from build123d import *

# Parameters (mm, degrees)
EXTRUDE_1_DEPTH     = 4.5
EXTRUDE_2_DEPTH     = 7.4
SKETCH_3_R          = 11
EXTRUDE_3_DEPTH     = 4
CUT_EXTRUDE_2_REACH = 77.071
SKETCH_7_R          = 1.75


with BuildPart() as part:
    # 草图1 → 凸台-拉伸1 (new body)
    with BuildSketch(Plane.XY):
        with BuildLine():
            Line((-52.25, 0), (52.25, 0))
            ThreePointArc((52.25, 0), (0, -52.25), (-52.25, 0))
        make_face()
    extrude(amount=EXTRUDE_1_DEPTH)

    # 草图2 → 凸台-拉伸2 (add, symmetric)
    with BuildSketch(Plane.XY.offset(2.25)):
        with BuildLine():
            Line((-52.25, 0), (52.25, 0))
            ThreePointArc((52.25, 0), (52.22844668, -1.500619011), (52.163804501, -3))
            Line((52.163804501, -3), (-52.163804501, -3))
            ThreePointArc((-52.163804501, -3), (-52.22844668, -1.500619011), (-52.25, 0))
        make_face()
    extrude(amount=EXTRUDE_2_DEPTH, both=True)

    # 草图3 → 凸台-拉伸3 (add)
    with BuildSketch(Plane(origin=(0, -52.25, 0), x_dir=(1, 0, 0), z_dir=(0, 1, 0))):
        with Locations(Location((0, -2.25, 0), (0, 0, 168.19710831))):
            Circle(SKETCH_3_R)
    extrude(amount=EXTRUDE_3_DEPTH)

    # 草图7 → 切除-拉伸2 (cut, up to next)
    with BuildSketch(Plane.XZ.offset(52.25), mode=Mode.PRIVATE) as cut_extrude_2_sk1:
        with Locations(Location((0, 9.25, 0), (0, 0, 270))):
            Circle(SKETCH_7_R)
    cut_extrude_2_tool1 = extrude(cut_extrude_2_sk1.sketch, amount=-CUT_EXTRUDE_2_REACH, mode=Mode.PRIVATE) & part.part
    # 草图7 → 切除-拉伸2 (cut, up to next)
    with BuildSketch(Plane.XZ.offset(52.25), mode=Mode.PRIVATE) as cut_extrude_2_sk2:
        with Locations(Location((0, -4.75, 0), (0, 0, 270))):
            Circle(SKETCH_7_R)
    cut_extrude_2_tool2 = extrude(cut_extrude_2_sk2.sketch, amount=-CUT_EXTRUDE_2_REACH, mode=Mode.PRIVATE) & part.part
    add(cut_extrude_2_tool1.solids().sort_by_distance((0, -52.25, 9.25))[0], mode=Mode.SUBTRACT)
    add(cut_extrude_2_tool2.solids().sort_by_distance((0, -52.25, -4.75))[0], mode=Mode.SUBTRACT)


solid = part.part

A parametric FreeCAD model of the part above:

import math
import FreeCAD as App
import Part
import Sketcher
Q = App.Units.Quantity

doc = App.newDocument("Part")
params = doc.addObject("Spreadsheet::Sheet", "Params")
for row, (alias, value) in enumerate([
    ("sketch1_radius", "52.25 mm"),
    ("pad1_length", "4.5 mm"),
    ("sketch2_radius", "52.25 mm"),
    ("pad2_length", "14.8 mm"),
    ("sketch3_diameter", "22 mm"),
    ("pad3_length", "4 mm"),
    ("sketch4_diameter", "3.5 mm"),
    ("sketch5_diameter", "3.5 mm"),
], start=1):
    params.set(f"A{row}", alias)
    params.set(f"B{row}", "=" + value)
    params.setAlias(f"B{row}", alias)

body = doc.addObject("PartDesign::Body", "Body")

sketch1 = doc.addObject("Sketcher::SketchObject", "Sketch")
body.addObject(sketch1)
sketch1.AttachmentSupport = (doc.XY_Plane, [""])
sketch1.MapMode = "FlatFace"
sketch1.addGeometry([
    Part.LineSegment(App.Vector(52.25, 0, 0), App.Vector(-52.25, 0, 0)),
    Part.ArcOfCircle(Part.Circle(App.Vector(0, 0, 0), App.Vector(0, 0, 1), 52.25), math.radians(180), math.radians(360)),
], False)
sketch1.addConstraint([
    Sketcher.Constraint("Coincident", 0, 1, 1, 2),
    Sketcher.Constraint("Coincident", 1, 1, 0, 2),
    Sketcher.Constraint("Horizontal", 0),
    Sketcher.Constraint("Coincident", 1, 3, -1, 1),
    Sketcher.Constraint("PointOnObject", 0, 1, -1),
    Sketcher.Constraint("Radius", 1, Q("52.25 mm")),
])
sketch1.setExpression("Constraints[5]", "Params.sketch1_radius")
pad1 = doc.addObject("PartDesign::Pad", "Pad")
body.addObject(pad1)
pad1.Profile = sketch1
pad1.setExpression("Length", "Params.pad1_length")

sketch2 = doc.addObject("Sketcher::SketchObject", "Sketch001")
body.addObject(sketch2)
sketch2.AttachmentSupport = (doc.XY_Plane, [""])
sketch2.MapMode = "FlatFace"
sketch2.AttachmentOffset = App.Placement(App.Vector(0, 0, 2.25), App.Rotation())
sketch2.addGeometry([
    Part.LineSegment(App.Vector(52.25, 0, 0), App.Vector(-52.25, 0, 0)),
    Part.ArcOfCircle(Part.Circle(App.Vector(0, 0, 0), App.Vector(0, 0, 1), 52.25), math.radians(180), math.radians(183.29152)),
    Part.LineSegment(App.Vector(-52.163805, -3, 0), App.Vector(52.163805, -3, 0)),
    Part.ArcOfCircle(Part.Circle(App.Vector(0, 0, 0), App.Vector(0, 0, 1), 52.25), math.radians(-3.29152), math.radians(0)),
], False)
sketch2.addConstraint([
    Sketcher.Constraint("Coincident", 0, 2, 1, 1),
    Sketcher.Constraint("Coincident", 1, 2, 2, 1),
    Sketcher.Constraint("Coincident", 2, 2, 3, 1),
    Sketcher.Constraint("Coincident", 3, 2, 0, 1),
    Sketcher.Constraint("Horizontal", 0),
    Sketcher.Constraint("Horizontal", 2),
    Sketcher.Constraint("Coincident", 1, 3, -1, 1),
    Sketcher.Constraint("Coincident", 3, 3, -1, 1),
    Sketcher.Constraint("Equal", 1, 3),
    Sketcher.Constraint("PointOnObject", 0, 2, -1),
    Sketcher.Constraint("Radius", 1, Q("52.25 mm")),
    Sketcher.Constraint("DistanceY", 1, 2, -1, 1, Q("3 mm")),
])
sketch2.setExpression("Constraints[10]", "Params.sketch2_radius")
pad2 = doc.addObject("PartDesign::Pad", "Pad001")
body.addObject(pad2)
pad2.Profile = sketch2
pad2.setExpression("Length", "Params.pad2_length")
pad2.Midplane = True

sketch3 = doc.addObject("Sketcher::SketchObject", "Sketch002")
body.addObject(sketch3)
sketch3.AttachmentSupport = (doc.XZ_Plane, [""])
sketch3.MapMode = "FlatFace"
sketch3.AttachmentOffset = App.Placement(App.Vector(0, 0, 52.25), App.Rotation())
sketch3.addGeometry(Part.Circle(App.Vector(0, 2.25, 0), App.Vector(0, 0, 1), 11), False)
sketch3.addConstraint([
    Sketcher.Constraint("PointOnObject", 0, 3, -2),
    Sketcher.Constraint("Diameter", 0, Q("22 mm")),
    Sketcher.Constraint("DistanceY", -1, 1, 0, 3, Q("2.25 mm")),
])
sketch3.setExpression("Constraints[1]", "Params.sketch3_diameter")
pad3 = doc.addObject("PartDesign::Pad", "Pad002")
body.addObject(pad3)
pad3.Profile = sketch3
pad3.setExpression("Length", "Params.pad3_length")
pad3.Reversed = True

sketch4 = doc.addObject("Sketcher::SketchObject", "Sketch003")
body.addObject(sketch4)
sketch4.AttachmentSupport = (doc.XZ_Plane, [""])
sketch4.MapMode = "FlatFace"
sketch4.AttachmentOffset = App.Placement(App.Vector(0, 0, 52.25), App.Rotation())
sketch4.addGeometry(Part.Circle(App.Vector(0, 9.25, 0), App.Vector(0, 0, 1), 1.75), False)
sketch4.addConstraint([
    Sketcher.Constraint("PointOnObject", 0, 3, -2),
    Sketcher.Constraint("Diameter", 0, Q("3.5 mm")),
    Sketcher.Constraint("DistanceY", -1, 1, 0, 3, Q("9.25 mm")),
])
sketch4.setExpression("Constraints[1]", "Params.sketch4_diameter")
pocket1 = doc.addObject("PartDesign::Pocket", "Pocket")
body.addObject(pocket1)
pocket1.Profile = sketch4
pocket1.Type = "UpToFirst"

sketch5 = doc.addObject("Sketcher::SketchObject", "Sketch004")
body.addObject(sketch5)
sketch5.AttachmentSupport = (doc.XZ_Plane, [""])
sketch5.MapMode = "FlatFace"
sketch5.AttachmentOffset = App.Placement(App.Vector(0, 0, 52.25), App.Rotation())
sketch5.addGeometry(Part.Circle(App.Vector(0, -4.75, 0), App.Vector(0, 0, 1), 1.75), False)
sketch5.addConstraint([
    Sketcher.Constraint("PointOnObject", 0, 3, -2),
    Sketcher.Constraint("Diameter", 0, Q("3.5 mm")),
    Sketcher.Constraint("DistanceY", 0, 3, -1, 1, Q("4.75 mm")),
])
sketch5.setExpression("Constraints[1]", "Params.sketch5_diameter")
pocket2 = doc.addObject("PartDesign::Pocket", "Pocket001")
body.addObject(pocket2)
pocket2.Profile = sketch5
pocket2.Type = "UpToFirst"

doc.recompute()
